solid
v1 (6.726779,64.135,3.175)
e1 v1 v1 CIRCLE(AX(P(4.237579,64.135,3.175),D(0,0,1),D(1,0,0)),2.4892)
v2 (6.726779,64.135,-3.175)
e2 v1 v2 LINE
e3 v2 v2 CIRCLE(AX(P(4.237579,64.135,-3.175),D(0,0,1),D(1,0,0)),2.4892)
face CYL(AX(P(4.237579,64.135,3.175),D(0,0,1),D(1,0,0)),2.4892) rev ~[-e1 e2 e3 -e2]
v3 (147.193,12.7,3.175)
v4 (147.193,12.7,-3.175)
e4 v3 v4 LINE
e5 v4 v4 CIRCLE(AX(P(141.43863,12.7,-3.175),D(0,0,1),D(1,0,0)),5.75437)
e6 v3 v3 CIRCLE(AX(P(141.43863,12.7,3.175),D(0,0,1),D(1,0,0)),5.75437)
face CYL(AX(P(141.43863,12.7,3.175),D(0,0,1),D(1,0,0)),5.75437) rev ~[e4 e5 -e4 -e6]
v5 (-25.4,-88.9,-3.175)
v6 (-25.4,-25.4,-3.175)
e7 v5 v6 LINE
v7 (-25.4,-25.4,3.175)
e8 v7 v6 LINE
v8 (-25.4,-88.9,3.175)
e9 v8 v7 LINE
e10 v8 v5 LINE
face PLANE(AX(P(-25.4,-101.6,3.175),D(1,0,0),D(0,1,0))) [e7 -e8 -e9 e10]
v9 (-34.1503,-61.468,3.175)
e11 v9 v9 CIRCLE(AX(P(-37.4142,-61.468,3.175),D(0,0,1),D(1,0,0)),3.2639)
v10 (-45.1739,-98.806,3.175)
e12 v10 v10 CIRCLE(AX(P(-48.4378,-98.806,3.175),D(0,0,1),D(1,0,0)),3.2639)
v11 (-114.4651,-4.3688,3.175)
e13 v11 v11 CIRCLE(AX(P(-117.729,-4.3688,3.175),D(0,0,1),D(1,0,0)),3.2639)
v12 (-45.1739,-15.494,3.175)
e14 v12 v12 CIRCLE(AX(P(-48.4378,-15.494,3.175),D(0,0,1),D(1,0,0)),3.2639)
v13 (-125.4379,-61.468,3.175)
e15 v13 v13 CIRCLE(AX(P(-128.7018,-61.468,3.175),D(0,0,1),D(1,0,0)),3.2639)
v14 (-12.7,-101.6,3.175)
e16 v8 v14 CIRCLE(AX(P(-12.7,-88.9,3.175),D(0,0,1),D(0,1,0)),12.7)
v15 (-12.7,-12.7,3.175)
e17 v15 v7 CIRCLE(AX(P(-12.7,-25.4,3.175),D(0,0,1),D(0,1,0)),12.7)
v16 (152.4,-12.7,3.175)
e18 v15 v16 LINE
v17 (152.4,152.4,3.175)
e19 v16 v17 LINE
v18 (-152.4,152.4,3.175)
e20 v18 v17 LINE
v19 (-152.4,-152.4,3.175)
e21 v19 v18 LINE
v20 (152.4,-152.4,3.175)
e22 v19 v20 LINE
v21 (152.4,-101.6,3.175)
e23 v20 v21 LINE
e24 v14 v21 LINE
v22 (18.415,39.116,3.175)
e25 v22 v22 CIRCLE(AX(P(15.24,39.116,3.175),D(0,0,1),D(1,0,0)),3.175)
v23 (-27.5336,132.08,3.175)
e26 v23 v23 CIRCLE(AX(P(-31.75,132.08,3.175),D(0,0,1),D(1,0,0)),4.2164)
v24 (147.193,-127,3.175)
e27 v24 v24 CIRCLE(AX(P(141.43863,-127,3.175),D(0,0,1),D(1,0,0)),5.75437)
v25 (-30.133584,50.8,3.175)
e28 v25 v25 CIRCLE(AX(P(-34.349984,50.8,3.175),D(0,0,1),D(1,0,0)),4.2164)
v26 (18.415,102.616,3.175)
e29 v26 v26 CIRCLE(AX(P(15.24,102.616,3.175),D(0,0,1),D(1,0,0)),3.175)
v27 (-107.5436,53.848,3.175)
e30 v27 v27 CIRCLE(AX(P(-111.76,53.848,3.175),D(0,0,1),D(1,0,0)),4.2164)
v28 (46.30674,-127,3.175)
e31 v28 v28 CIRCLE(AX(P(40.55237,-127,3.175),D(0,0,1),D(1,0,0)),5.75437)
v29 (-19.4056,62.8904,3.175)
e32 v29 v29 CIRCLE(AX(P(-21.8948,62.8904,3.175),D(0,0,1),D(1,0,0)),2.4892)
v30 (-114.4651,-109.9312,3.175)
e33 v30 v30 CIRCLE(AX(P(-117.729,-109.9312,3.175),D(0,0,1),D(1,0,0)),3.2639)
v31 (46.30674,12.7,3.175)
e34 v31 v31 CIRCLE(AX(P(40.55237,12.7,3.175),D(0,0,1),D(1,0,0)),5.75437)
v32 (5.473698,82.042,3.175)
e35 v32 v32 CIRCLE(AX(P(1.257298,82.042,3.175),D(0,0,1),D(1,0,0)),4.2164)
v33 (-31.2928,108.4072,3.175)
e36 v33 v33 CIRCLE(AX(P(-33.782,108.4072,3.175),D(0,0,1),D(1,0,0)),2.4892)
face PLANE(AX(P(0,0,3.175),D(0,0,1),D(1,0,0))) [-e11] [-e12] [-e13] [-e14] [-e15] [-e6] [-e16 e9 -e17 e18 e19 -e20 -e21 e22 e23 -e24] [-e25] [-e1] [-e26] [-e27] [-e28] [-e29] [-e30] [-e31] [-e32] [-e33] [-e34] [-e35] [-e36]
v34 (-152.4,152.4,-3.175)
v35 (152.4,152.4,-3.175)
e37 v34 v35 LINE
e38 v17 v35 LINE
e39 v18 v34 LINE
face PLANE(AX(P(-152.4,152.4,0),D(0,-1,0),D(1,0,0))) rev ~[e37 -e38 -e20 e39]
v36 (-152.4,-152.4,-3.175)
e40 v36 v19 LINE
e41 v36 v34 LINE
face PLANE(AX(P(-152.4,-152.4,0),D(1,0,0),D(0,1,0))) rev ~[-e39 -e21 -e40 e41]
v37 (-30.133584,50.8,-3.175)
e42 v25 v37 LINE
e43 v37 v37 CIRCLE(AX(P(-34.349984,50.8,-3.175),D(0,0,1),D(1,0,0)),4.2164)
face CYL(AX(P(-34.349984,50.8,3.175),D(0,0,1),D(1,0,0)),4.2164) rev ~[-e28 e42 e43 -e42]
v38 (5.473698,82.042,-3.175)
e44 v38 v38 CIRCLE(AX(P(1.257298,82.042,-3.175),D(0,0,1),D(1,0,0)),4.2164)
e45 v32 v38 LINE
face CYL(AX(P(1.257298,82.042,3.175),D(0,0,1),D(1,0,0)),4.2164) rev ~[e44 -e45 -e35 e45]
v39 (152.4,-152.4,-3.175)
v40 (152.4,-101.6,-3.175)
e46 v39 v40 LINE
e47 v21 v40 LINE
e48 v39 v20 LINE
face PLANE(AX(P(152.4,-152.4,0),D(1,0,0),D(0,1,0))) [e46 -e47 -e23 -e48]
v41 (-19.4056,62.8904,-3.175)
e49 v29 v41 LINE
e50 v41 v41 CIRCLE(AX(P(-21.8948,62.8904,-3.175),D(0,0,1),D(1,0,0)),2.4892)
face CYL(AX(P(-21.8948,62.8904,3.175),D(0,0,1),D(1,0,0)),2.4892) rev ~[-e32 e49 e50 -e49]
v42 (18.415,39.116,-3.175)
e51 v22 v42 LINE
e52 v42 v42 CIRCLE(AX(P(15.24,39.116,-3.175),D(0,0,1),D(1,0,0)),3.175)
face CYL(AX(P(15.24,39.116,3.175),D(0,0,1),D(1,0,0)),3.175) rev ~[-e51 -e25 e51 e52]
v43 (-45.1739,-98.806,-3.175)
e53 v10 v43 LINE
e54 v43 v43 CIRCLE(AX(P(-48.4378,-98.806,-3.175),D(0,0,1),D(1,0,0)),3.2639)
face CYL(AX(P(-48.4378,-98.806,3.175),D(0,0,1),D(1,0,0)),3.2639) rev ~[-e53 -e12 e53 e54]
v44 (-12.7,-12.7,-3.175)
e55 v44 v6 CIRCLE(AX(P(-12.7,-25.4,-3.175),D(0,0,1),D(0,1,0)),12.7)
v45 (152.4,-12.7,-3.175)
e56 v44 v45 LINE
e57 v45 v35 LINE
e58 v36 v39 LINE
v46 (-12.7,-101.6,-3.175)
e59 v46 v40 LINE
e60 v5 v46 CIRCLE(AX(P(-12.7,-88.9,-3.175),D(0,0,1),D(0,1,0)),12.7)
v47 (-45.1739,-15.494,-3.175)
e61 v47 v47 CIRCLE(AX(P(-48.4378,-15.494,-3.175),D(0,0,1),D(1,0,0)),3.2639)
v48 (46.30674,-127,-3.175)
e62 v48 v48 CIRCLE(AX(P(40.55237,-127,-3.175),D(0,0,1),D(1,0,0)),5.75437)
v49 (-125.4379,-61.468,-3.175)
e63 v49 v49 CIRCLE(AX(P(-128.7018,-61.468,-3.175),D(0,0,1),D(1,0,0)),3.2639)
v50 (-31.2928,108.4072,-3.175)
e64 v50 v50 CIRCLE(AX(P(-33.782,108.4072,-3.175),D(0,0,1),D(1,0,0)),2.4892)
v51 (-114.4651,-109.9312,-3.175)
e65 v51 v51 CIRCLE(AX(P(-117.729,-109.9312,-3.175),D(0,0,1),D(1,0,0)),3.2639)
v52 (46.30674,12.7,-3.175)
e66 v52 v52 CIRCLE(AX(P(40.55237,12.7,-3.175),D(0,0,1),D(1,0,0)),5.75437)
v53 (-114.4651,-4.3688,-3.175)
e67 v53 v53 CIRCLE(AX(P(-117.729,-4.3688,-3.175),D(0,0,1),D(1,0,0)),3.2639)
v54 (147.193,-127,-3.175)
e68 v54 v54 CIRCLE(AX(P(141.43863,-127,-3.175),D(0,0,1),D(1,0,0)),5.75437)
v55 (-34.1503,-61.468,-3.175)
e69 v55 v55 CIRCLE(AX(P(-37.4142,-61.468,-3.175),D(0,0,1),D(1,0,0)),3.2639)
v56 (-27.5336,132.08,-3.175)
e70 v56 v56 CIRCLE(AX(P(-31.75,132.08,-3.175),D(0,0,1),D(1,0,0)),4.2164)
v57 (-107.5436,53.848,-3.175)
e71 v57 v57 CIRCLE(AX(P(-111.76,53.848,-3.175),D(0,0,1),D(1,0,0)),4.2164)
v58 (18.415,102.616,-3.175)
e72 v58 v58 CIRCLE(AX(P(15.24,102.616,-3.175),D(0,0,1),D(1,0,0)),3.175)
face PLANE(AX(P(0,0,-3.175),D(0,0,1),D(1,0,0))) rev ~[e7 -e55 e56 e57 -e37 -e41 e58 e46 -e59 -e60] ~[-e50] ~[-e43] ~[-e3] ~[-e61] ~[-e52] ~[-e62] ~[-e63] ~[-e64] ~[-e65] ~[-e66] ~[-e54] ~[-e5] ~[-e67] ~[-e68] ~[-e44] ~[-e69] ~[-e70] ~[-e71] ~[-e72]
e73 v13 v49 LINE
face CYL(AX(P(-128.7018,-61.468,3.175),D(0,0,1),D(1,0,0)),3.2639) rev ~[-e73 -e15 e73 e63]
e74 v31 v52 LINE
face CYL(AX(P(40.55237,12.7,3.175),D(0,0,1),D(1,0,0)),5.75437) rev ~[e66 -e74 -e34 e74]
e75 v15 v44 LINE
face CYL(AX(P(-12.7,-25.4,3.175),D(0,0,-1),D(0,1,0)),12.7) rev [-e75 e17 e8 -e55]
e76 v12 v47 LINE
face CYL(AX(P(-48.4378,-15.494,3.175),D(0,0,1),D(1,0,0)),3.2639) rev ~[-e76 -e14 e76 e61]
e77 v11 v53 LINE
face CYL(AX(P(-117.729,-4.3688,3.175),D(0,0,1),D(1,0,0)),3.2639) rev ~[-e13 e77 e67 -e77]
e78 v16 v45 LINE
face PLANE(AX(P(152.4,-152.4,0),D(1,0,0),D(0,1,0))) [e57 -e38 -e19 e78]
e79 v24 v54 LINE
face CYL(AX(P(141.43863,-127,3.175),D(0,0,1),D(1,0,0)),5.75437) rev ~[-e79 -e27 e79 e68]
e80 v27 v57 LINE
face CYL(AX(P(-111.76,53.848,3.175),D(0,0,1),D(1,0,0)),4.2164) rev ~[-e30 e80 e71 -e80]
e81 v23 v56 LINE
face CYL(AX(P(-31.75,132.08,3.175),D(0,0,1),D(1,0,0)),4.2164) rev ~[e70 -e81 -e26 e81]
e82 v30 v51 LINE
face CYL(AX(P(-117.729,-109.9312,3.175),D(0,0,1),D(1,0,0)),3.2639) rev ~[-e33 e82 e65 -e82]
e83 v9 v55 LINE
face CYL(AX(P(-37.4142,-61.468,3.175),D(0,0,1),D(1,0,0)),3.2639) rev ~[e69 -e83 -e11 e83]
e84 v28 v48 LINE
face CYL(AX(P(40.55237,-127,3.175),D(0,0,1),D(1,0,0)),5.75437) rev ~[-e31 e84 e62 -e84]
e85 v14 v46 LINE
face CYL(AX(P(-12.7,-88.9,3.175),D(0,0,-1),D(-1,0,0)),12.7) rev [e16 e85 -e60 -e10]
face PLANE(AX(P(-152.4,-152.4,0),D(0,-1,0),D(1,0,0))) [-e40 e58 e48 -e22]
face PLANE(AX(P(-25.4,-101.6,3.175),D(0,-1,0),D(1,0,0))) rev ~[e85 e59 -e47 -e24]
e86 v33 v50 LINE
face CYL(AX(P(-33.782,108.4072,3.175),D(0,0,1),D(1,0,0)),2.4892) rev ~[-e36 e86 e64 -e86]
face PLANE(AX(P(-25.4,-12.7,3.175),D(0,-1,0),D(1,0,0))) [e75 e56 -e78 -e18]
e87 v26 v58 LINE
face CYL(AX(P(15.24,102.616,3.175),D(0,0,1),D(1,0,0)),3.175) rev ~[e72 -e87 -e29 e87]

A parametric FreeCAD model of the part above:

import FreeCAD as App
import Part
import Sketcher
Q = App.Units.Quantity


def edges_at(feature, points):
    """Names of the edges that pass closest to the given points."""
    edges = feature.Shape.Edges
    near = lambda p: min(range(len(edges)), key=lambda i: edges[i].distToShape(Part.Vertex(*p))[0])
    return sorted({f"Edge{near(p) + 1}" for p in points})


def add_polygon(sketch, points):
    """Adds a closed chain of lines whose ends are joined by coincident constraints."""
    first, n = sketch.GeometryCount, len(points)
    for a, b in zip(points, points[1:] + points[:1]):
        sketch.addGeometry(Part.LineSegment(App.Vector(*a, 0), App.Vector(*b, 0)), False)
    for i in range(n):
        sketch.addConstraint(Sketcher.Constraint("Coincident", first + i, 2, first + (i + 1) % n, 1))

doc = App.newDocument("Part")
body = doc.addObject("PartDesign::Body", "Body")

sketch1 = body.newObject("Sketcher::SketchObject", "Sketch")
sketch1.AttachmentSupport = (doc.getObject("XY_Plane"), [""])
sketch1.MapMode = "FlatFace"
add_polygon(sketch1, [(-152.4, 152.4), (-152.4, -152.4), (152.4, -152.4), (152.4, 152.4)])
sketch1.addConstraint([
    Sketcher.Constraint("Vertical", 0),
    Sketcher.Constraint("Horizontal", 1),
    Sketcher.Constraint("Vertical", 2),
    Sketcher.Constraint("Horizontal", 3),
    Sketcher.Constraint("Symmetric", 0, 2, 2, 2, -1, 1),
    Sketcher.Constraint("Equal", 3, 0),
    Sketcher.Constraint("DistanceX", 1, 1, 1, 2, Q("12 in")),
])
pad1 = body.newObject("PartDesign::Pad", "Pad")
pad1.Profile = sketch1
pad1.Length = Q("0.25 in")
pad1.Midplane = True

sketch2 = body.newObject("Sketcher::SketchObject", "Sketch001")
sketch2.AttachmentSupport = (doc.getObject("XY_Plane"), [""])
sketch2.MapMode = "FlatFace"
sketch2.AttachmentOffset = App.Placement(App.Vector(0, 0, 0.125 * 25.4), App.Rotation())
add_polygon(sketch2, [(-25.4, -12.7), (-25.4, -101.6), (152.4, -101.6), (152.4, -12.7)])
sketch2.addConstraint([
    Sketcher.Constraint("Vertical", 0),
    Sketcher.Constraint("Horizontal", 1),
    Sketcher.Constraint("Vertical", 2),
    Sketcher.Constraint("Horizontal", 3),
    Sketcher.Constraint("DistanceX", 1, 1, 1, 2, Q("7 in")),
    Sketcher.Constraint("DistanceY", 0, 2, 0, 1, Q("3.5 in")),
    Sketcher.Constraint("DistanceX", 0, 2, -1, 1, Q("1 in")),
    Sketcher.Constraint("DistanceY", 0, 2, -1, 1, Q("4 in")),
])
pocket1 = body.newObject("PartDesign::Pocket", "Pocket")
pocket1.Profile = sketch2
pocket1.Type = "ThroughAll"
doc.recompute()

fillet = body.newObject("PartDesign::Fillet", "Fillet")
fillet.Base = (pocket1, edges_at(pocket1, [(-25.4, -12.7, 0), (-25.4, -101.6, 0)]))
fillet.Radius = Q("0.5 in")

sketch3 = body.newObject("Sketcher::SketchObject", "Sketch002")
sketch3.AttachmentSupport = (doc.getObject("XY_Plane"), [""])
sketch3.MapMode = "FlatFace"
sketch3.AttachmentOffset = App.Placement(App.Vector(0, 0, 0.125 * 25.4), App.Rotation())
sketch3.addGeometry([
    Part.Circle(App.Vector(40.55237, -127, 0), App.Vector(0, 0, 1), 5.75437),
    Part.Circle(App.Vector(141.43863, -127, 0), App.Vector(0, 0, 1), 5.75437),
    Part.Circle(App.Vector(40.55237, 12.7, 0), App.Vector(0, 0, 1), 5.75437),
    Part.Circle(App.Vector(141.43863, 12.7, 0), App.Vector(0, 0, 1), 5.75437),
], False)
sketch3.addConstraint([
    Sketcher.Constraint("Equal", 0, 1),
    Sketcher.Constraint("Equal", 1, 2),
    Sketcher.Constraint("Equal", 2, 3),
    Sketcher.Constraint("Horizontal", 0, 3, 1, 3),
    Sketcher.Constraint("Horizontal", 2, 3, 3, 3),
    Sketcher.Constraint("Vertical", 0, 3, 2, 3),
    Sketcher.Constraint("Vertical", 1, 3, 3, 3),
    Sketcher.Constraint("DistanceY", 0, 3, -1, 1, Q("5 in")),
    Sketcher.Constraint("Diameter", 0, Q("0.4531 in")),
    Sketcher.Constraint("DistanceY", -1, 1, 2, 3, Q("0.5 in")),
    Sketcher.Constraint("DistanceX", 0, 3, 1, 3, Q("3.9719 in")),
    Sketcher.Constraint("DistanceX", -1, 1, 0, 3, 40.55237),
])
pocket2 = body.newObject("PartDesign::Pocket", "Pocket001")
pocket2.Profile = sketch3
pocket2.Type = "ThroughAll"

sketch4 = body.newObject("Sketcher::SketchObject", "Sketch003")
sketch4.AttachmentSupport = (doc.getObject("XY_Plane"), [""])
sketch4.MapMode = "FlatFace"
sketch4.AttachmentOffset = App.Placement(App.Vector(0, 0, 0.125 * 25.4), App.Rotation())
sketch4.addGeometry([
    Part.Circle(App.Vector(-31.75, 132.08, 0), App.Vector(0, 0, 1), 4.2164),
    Part.Circle(App.Vector(1.257298, 82.042, 0), App.Vector(0, 0, 1), 4.2164),
], False)
sketch4.addConstraint([
    Sketcher.Constraint("Equal", 0, 1),
    Sketcher.Constraint("Diameter", 0, Q("0.332 in")),
    Sketcher.Constraint("DistanceY", -1, 1, 0, 3, Q("5.2 in")),
    Sketcher.Constraint("DistanceX", 0, 3, -1, 1, Q("1.25 in")),
    Sketcher.Constraint("DistanceY", -1, 1, 1, 3, Q("3.23 in")),
    Sketcher.Constraint("DistanceX", -1, 1, 1, 3, Q("0.0494999 in")),
])
pocket3 = body.newObject("PartDesign::Pocket", "Pocket002")
pocket3.Profile = sketch4
pocket3.Type = "ThroughAll"

sketch5 = body.newObject("Sketcher::SketchObject", "Sketch004")
sketch5.AttachmentSupport = (doc.getObject("XY_Plane"), [""])
sketch5.MapMode = "FlatFace"
sketch5.AttachmentOffset = App.Placement(App.Vector(0, 0, 0.125 * 25.4), App.Rotation())
sketch5.addGeometry([
    Part.Circle(App.Vector(-111.76, 53.848, 0), App.Vector(0, 0, 1), 4.2164),
    Part.Circle(App.Vector(-34.349984, 50.8, 0), App.Vector(0, 0, 1), 4.2164),
], False)
sketch5.addConstraint([
    Sketcher.Constraint("Equal", 0, 1),
    Sketcher.Constraint("Diameter", 0, Q("0.332 in")),
    Sketcher.Constraint("DistanceY", -1, 1, 1, 3, Q("2 in")),
    Sketcher.Constraint("DistanceX", 0, 3, -1, 1, Q("4.4 in")),
    Sketcher.Constraint("DistanceY", -1, 1, 0, 3, Q("2.12 in")),
    Sketcher.Constraint("DistanceX", 1, 3, -1, 1, 34.349984),
])
pocket4 = body.newObject("PartDesign::Pocket", "Pocket003")
pocket4.Profile = sketch5
pocket4.Type = "ThroughAll"

sketch6 = body.newObject("Sketcher::SketchObject", "Sketch005")
sketch6.AttachmentSupport = (doc.getObject("XY_Plane"), [""])
sketch6.MapMode = "FlatFace"
sketch6.AttachmentOffset = App.Placement(App.Vector(0, 0, 0.125 * 25.4), App.Rotation())
sketch6.addGeometry([
    Part.Circle(App.Vector(15.24, 102.616, 0), App.Vector(0, 0, 1), 3.175),
    Part.Circle(App.Vector(15.24, 39.116, 0), App.Vector(0, 0, 1), 3.175),
], False)
sketch6.addConstraint([
    Sketcher.Constraint("Equal", 0, 1),
    Sketcher.Constraint("Vertical", 0, 3, 1, 3),
    Sketcher.Constraint("Diameter", 0, Q("0.25 in")),
    Sketcher.Constraint("DistanceX", -1, 1, 0, 3, Q("0.6 in")),
    Sketcher.Constraint("DistanceY", 1, 3, 0, 3, Q("2.5 in")),
    Sketcher.Constraint("DistanceY", -1, 1, 0, 3, Q("4.04 in")),
])
pocket5 = body.newObject("PartDesign::Pocket", "Pocket004")
pocket5.Profile = sketch6
pocket5.Type = "ThroughAll"

sketch7 = body.newObject("Sketcher::SketchObject", "Sketch006")
sketch7.AttachmentSupport = (doc.getObject("XY_Plane"), [""])
sketch7.MapMode = "FlatFace"
sketch7.AttachmentOffset = App.Placement(App.Vector(0, 0, 0.125 * 25.4), App.Rotation())
sketch7.addGeometry([
    Part.Circle(App.Vector(-48.4378, -98.806, 0), App.Vector(0, 0, 1), 3.2639),
    Part.Circle(App.Vector(-128.7018, -61.468, 0), App.Vector(0, 0, 1), 3.2639),
    Part.Circle(App.Vector(-117.729, -109.9312, 0), App.Vector(0, 0, 1), 3.2639),
    Part.Circle(App.Vector(-37.4142, -61.468, 0), App.Vector(0, 0, 1), 3.2639),
    Part.Circle(App.Vector(-48.4378, -15.494, 0), App.Vector(0, 0, 1), 3.2639),
    Part.Circle(App.Vector(-117.729, -4.3688, 0), App.Vector(0, 0, 1), 3.2639),
], False)
sketch7.addConstraint([
    Sketcher.Constraint("Equal", 0, 1),
    Sketcher.Constraint("Equal", 1, 2),
    Sketcher.Constraint("Equal", 2, 3),
    Sketcher.Constraint("Equal", 3, 4),
    Sketcher.Constraint("Equal", 4, 5),
    Sketcher.Constraint("Horizontal", 1, 3, 3, 3),
    Sketcher.Constraint("Vertical", 0, 3, 4, 3),
    Sketcher.Constraint("Vertical", 2, 3, 5, 3),
    Sketcher.Constraint("Diameter", 0, Q("0.257 in")),
    Sketcher.Constraint("DistanceY", 0, 3, -1, 1, Q("3.89 in")),
    Sketcher.Constraint("DistanceY", 1, 3, -1, 1, Q("2.42 in")),
    Sketcher.Constraint("DistanceY", 4, 3, -1, 1, Q("0.61 in")),
    Sketcher.Constraint("DistanceX", 1, 3, 0, 3, Q("3.16 in")),
    Sketcher.Constraint("DistanceX", 0, 3, -1, 1, Q("1.907 in")),
    Sketcher.Constraint("DistanceX", 2, 3, -1, 1, Q("4.635 in")),
    Sketcher.Constraint("DistanceY", 2, 3, -1, 1, Q("4.328 in")),
    Sketcher.Constraint("DistanceX", 3, 3, -1, 1, Q("1.473 in")),
    Sketcher.Constraint("DistanceY", 5, 3, -1, 1, Q("0.172 in")),
])
pocket6 = body.newObject("PartDesign::Pocket", "Pocket005")
pocket6.Profile = sketch7
pocket6.Type = "ThroughAll"

sketch8 = body.newObject("Sketcher::SketchObject", "Sketch007")
sketch8.AttachmentSupport = (doc.getObject("XY_Plane"), [""])
sketch8.MapMode = "FlatFace"
sketch8.AttachmentOffset = App.Placement(App.Vector(0, 0, 0.125 * 25.4), App.Rotation())
sketch8.addGeometry([
    Part.Circle(App.Vector(-21.8948, 62.8904, 0), App.Vector(0, 0, 1), 2.4892),
    Part.Circle(App.Vector(-33.782, 108.4072, 0), App.Vector(0, 0, 1), 2.4892),
    Part.Circle(App.Vector(4.237579, 64.135, 0), App.Vector(0, 0, 1), 2.4892),
], False)
sketch8.addConstraint([
    Sketcher.Constraint("Equal", 0, 1),
    Sketcher.Constraint("Equal", 1, 2),
    Sketcher.Constraint("Diameter", 0, Q("0.196 in")),
    Sketcher.Constraint("DistanceX", 1, 3, -1, 1, Q("1.33 in")),
    Sketcher.Constraint("DistanceX", 0, 3, -1, 1, Q("0.862 in")),
    Sketcher.Constraint("DistanceY", -1, 1, 0, 3, Q("2.476 in")),
    Sketcher.Constraint("DistanceY", -1, 1, 1, 3, Q("4.268 in")),
    Sketcher.Constraint("DistanceY", -1, 1, 2, 3, Q("2.525 in")),
    Sketcher.Constraint("DistanceX", -1, 1, 2, 3, 4.237579),
])
pocket7 = body.newObject("PartDesign::Pocket", "Pocket006")
pocket7.Profile = sketch8
pocket7.Length = Q("1 in")

doc.recompute()
